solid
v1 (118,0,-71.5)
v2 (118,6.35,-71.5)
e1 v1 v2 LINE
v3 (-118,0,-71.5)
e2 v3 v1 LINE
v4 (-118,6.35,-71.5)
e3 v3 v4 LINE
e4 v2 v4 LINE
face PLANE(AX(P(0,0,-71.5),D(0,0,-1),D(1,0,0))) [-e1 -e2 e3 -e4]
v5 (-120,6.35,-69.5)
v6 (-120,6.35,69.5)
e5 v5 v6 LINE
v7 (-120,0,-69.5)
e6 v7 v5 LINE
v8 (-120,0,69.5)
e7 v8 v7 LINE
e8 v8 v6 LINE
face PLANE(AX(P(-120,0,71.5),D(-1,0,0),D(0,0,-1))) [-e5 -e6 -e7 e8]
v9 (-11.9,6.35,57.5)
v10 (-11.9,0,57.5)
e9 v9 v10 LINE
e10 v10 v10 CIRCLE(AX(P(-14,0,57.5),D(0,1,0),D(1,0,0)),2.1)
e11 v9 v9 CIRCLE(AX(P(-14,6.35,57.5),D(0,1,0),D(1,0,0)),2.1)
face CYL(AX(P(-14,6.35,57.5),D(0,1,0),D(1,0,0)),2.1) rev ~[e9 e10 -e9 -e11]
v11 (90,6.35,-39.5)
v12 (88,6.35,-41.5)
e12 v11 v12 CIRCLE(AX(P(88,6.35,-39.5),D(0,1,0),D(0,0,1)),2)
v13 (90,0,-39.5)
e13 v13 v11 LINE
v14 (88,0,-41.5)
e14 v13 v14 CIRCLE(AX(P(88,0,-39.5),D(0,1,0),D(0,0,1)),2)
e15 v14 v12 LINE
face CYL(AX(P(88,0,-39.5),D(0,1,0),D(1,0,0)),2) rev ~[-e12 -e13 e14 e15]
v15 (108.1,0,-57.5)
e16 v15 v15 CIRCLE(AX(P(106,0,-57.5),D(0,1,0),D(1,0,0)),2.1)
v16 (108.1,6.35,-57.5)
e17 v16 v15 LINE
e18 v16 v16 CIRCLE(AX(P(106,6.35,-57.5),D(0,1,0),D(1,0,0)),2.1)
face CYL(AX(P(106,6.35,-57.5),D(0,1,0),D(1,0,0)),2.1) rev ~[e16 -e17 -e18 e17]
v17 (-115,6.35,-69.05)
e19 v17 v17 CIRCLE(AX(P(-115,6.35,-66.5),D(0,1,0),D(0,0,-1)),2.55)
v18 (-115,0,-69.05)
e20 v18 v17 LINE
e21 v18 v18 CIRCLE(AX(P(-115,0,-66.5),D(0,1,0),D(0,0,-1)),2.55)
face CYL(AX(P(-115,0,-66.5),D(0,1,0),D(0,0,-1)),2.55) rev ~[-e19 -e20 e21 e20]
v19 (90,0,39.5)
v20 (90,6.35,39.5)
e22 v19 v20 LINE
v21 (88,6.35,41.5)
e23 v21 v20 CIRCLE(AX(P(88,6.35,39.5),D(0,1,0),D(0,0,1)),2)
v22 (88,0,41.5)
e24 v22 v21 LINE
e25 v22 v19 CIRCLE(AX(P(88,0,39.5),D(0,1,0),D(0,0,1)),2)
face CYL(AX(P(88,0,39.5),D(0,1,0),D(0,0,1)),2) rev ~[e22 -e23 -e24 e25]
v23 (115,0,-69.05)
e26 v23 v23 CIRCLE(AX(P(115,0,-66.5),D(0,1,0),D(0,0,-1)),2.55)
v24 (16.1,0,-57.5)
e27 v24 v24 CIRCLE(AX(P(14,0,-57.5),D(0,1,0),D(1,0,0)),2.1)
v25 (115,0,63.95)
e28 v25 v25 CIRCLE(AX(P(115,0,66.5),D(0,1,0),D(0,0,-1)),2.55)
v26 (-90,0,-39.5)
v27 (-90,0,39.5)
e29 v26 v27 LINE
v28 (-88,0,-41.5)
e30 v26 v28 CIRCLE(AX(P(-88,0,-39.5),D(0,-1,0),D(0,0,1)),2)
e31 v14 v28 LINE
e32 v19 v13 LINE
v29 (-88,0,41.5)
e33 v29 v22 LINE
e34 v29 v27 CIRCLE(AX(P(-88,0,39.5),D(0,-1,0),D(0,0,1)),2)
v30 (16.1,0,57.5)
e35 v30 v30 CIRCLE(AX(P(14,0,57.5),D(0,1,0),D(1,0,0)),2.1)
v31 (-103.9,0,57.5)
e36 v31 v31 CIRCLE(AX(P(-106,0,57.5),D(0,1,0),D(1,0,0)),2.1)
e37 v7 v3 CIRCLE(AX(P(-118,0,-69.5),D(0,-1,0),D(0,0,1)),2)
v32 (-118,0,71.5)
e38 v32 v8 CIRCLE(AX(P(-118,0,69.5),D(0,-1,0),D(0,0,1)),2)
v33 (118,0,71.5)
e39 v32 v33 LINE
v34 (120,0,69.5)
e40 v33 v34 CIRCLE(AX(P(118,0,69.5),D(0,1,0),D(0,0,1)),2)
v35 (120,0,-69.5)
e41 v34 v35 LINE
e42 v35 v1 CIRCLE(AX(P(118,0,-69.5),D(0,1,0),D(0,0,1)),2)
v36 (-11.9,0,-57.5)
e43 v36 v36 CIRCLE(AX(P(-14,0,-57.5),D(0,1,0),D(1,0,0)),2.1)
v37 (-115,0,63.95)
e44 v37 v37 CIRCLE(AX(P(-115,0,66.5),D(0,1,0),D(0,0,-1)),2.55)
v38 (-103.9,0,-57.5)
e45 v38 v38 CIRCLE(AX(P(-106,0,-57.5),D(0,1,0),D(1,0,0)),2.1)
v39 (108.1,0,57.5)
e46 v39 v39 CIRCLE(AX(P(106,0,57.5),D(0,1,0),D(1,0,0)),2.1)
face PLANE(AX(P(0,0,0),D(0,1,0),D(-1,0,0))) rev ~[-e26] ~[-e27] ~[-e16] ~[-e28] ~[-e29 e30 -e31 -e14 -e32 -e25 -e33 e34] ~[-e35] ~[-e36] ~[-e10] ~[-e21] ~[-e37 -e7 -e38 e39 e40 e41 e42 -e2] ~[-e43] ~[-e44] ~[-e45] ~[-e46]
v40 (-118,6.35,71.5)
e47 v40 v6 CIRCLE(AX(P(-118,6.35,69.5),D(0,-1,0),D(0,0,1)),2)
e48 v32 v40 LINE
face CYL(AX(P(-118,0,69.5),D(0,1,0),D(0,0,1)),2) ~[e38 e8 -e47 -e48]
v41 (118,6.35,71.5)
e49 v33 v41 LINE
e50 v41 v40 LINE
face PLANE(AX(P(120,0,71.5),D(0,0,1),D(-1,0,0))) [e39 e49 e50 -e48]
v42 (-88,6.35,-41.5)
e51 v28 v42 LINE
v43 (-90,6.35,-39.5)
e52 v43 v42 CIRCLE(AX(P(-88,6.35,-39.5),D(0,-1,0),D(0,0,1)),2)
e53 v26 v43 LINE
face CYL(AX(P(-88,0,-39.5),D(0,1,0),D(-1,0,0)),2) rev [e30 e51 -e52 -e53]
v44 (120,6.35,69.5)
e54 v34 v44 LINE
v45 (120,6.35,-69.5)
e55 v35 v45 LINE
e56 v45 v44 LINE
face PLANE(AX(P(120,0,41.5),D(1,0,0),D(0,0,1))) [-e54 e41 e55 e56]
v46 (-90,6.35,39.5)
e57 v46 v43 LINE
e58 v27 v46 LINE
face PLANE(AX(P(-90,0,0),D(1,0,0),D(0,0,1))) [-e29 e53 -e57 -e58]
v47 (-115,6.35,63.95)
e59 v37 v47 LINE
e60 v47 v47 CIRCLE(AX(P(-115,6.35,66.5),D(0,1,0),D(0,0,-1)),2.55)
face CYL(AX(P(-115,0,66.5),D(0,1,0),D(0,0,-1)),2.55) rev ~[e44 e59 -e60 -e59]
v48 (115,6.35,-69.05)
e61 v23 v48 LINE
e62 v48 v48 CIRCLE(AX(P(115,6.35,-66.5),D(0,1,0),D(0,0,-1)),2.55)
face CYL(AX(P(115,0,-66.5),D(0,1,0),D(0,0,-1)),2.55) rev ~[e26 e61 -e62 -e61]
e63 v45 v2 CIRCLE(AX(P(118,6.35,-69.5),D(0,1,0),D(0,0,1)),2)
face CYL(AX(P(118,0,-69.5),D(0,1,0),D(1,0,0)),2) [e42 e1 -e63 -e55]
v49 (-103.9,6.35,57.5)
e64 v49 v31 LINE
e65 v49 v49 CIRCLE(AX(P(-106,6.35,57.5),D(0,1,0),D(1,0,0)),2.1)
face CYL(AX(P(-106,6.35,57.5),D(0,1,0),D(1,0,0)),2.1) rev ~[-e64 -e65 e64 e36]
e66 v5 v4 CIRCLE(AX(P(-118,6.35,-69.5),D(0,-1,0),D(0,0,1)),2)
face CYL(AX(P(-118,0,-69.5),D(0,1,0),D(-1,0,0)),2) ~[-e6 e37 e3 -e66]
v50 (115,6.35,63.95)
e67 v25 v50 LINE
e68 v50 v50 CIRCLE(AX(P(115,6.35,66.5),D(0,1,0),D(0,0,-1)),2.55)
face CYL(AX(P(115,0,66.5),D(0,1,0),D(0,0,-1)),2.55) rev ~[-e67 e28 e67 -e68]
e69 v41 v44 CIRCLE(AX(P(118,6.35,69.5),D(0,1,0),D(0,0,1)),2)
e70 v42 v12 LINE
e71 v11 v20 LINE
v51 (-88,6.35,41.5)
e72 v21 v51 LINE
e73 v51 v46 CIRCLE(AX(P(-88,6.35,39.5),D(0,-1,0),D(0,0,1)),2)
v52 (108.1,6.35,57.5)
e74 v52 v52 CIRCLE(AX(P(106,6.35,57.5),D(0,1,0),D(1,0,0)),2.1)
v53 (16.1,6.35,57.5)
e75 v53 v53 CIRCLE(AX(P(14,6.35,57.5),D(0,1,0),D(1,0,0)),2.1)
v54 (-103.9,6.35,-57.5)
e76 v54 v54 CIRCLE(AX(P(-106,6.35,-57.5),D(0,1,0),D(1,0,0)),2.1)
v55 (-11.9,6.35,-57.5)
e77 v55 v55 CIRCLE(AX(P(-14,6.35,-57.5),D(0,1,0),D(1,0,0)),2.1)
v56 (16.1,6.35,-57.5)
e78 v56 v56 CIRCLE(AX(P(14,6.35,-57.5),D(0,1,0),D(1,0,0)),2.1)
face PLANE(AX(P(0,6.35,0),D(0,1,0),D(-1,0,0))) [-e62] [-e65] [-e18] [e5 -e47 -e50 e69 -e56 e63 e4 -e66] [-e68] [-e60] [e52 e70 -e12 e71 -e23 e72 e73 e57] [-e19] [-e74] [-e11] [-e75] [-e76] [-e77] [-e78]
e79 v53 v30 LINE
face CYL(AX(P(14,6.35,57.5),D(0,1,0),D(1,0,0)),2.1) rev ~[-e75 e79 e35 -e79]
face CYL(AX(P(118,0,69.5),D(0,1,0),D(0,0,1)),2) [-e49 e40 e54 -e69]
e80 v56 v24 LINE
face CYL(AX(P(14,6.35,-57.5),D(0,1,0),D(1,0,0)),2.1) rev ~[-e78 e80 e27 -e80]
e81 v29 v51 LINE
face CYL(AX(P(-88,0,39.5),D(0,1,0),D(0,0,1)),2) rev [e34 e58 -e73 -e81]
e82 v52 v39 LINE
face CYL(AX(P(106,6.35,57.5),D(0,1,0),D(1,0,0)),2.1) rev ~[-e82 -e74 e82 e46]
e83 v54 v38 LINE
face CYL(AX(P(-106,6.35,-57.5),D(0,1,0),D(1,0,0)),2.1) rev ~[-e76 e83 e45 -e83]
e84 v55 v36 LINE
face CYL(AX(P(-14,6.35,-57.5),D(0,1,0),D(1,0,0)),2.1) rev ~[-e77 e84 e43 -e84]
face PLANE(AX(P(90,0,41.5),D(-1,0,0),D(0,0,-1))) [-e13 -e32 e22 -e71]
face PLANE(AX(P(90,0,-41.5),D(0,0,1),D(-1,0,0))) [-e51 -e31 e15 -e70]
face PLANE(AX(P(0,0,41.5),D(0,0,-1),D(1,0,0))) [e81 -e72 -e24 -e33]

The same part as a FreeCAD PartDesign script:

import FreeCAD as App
import Part
import Sketcher
Q = App.Units.Quantity


def edges_at(feature, points):
    """Names of the edges that pass closest to the given points."""
    edges = feature.Shape.Edges
    near = lambda p: min(range(len(edges)), key=lambda i: edges[i].distToShape(Part.Vertex(*p))[0])
    return sorted({f"Edge{near(p) + 1}" for p in points})

doc = App.newDocument("Part")
body = doc.addObject("PartDesign::Body", "Body")

# Sketch on XZ plane
sketch1 = body.newObject("Sketcher::SketchObject", "Sketch")
sketch1.AttachmentSupport = (doc.getObject("XZ_Plane"), [""])
sketch1.MapMode = "FlatFace"
sketch1.addGeometry([
    Part.LineSegment(App.Vector(120, 72, 0), App.Vector(120, -72, 0)),  # 0
    Part.LineSegment(App.Vector(120, -72, 0), App.Vector(-120, -72, 0)),  # 1
    Part.LineSegment(App.Vector(-120, -72, 0), App.Vector(-120, 72, 0)),  # 2
    Part.LineSegment(App.Vector(-120, 72, 0), App.Vector(120, 72, 0)),  # 3
    Part.LineSegment(App.Vector(90, 42, 0), App.Vector(-90, 42, 0)),  # 4
    Part.LineSegment(App.Vector(-90, 42, 0), App.Vector(-90, -42, 0)),  # 5
    Part.LineSegment(App.Vector(-90, -42, 0), App.Vector(90, -42, 0)),  # 6
    Part.LineSegment(App.Vector(90, -42, 0), App.Vector(90, 42, 0)),  # 7
], False)
sketch1.addConstraint([
    Sketcher.Constraint("Coincident", 0, 2, 1, 1),
    Sketcher.Constraint("Coincident", 1, 2, 2, 1),
    Sketcher.Constraint("Coincident", 2, 2, 3, 1),
    Sketcher.Constraint("Coincident", 3, 2, 0, 1),
    Sketcher.Constraint("Coincident", 4, 2, 5, 1),
    Sketcher.Constraint("Coincident", 5, 2, 6, 1),
    Sketcher.Constraint("Coincident", 6, 2, 7, 1),
    Sketcher.Constraint("Coincident", 7, 2, 4, 1),
    Sketcher.Constraint("Vertical", 0),
    Sketcher.Constraint("Horizontal", 1),
    Sketcher.Constraint("Vertical", 2),
    Sketcher.Constraint("Horizontal", 3),
    Sketcher.Constraint("Horizontal", 4),
    Sketcher.Constraint("Vertical", 5),
    Sketcher.Constraint("Horizontal", 6),
    Sketcher.Constraint("Vertical", 7),
    Sketcher.Constraint("Symmetric", 0, 2, 2, 2, -1, 1),
    Sketcher.Constraint("Symmetric", 4, 2, 6, 2, -1, 1),
    Sketcher.Constraint("DistanceX", 1, 2, 1, 1, Q("240 mm")),
    Sketcher.Constraint("DistanceY", 0, 2, 0, 1, Q("143 mm")),
    Sketcher.Constraint("DistanceX", 2, 2, 4, 2, Q("30 mm")),
    Sketcher.Constraint("DistanceY", 4, 2, 2, 2, Q("30 mm")),
])
pad1 = body.newObject("PartDesign::Pad", "Pad")
pad1.Profile = sketch1
pad1.Length = 6.35
pad1.Reversed = True

# Sketch on XZ plane
sketch2 = body.newObject("Sketcher::SketchObject", "Sketch001")
sketch2.AttachmentSupport = (doc.getObject("XZ_Plane"), [""])
sketch2.MapMode = "FlatFace"
sketch2.AttachmentOffset = App.Placement(App.Vector(0, 0, -6.35), App.Rotation())
sketch2.addGeometry([
    Part.Circle(App.Vector(-106, 57.5, 0), App.Vector(0, 0, 1), 2.1),  # 0
    Part.Circle(App.Vector(-106, -57.5, 0), App.Vector(0, 0, 1), 2.1),  # 1
    Part.Circle(App.Vector(-14, 57.5, 0), App.Vector(0, 0, 1), 2.1),  # 2
    Part.Circle(App.Vector(-14, -57.5, 0), App.Vector(0, 0, 1), 2.1),  # 3
    Part.Circle(App.Vector(14, 57.5, 0), App.Vector(0, 0, 1), 2.1),  # 4
    Part.Circle(App.Vector(14, -57.5, 0), App.Vector(0, 0, 1), 2.1),  # 5
    Part.Circle(App.Vector(106, 57.5, 0), App.Vector(0, 0, 1), 2.1),  # 6
    Part.Circle(App.Vector(106, -57.5, 0), App.Vector(0, 0, 1), 2.1),  # 7
], False)
sketch2.addConstraint([
    Sketcher.Constraint("Equal", 0, 1),
    Sketcher.Constraint("Equal", 1, 2),
    Sketcher.Constraint("Equal", 2, 3),
    Sketcher.Constraint("Equal", 3, 4),
    Sketcher.Constraint("Equal", 4, 5),
    Sketcher.Constraint("Equal", 5, 6),
    Sketcher.Constraint("Equal", 6, 7),
    Sketcher.Constraint("Symmetric", 3, 3, 4, 3, -1, 1),
    Sketcher.Constraint("Symmetric", 2, 3, 5, 3, -1, 1),
    Sketcher.Constraint("Symmetric", 1, 3, 6, 3, -1, 1),
    Sketcher.Constraint("Symmetric", 0, 3, 7, 3, -1, 1),
    Sketcher.Constraint("Symmetric", 2, 3, 4, 3, -2),
    Sketcher.Constraint("Symmetric", 0, 3, 6, 3, -2),
    Sketcher.Constraint("Horizontal", 0, 3, 2, 3),
    Sketcher.Constraint("Diameter", 0, Q("4.2 mm")),
    Sketcher.Constraint("DistanceX", 0, 3, -1, 1, Q("106 mm")),
    Sketcher.Constraint("DistanceX", 2, 3, -1, 1, Q("14 mm")),
    Sketcher.Constraint("DistanceY", 1, 3, 0, 3, Q("115 mm")),
])
pocket1 = body.newObject("PartDesign::Pocket", "Pocket")
pocket1.Profile = sketch2
pocket1.Type = "ThroughAll"
pocket1.Reversed = True

# Sketch on XZ plane
sketch3 = body.newObject("Sketcher::SketchObject", "Sketch002")
sketch3.AttachmentSupport = (doc.getObject("XZ_Plane"), [""])
sketch3.MapMode = "FlatFace"
sketch3.addGeometry([
    Part.Circle(App.Vector(115, 66.5, 0), App.Vector(0, 0, 1), 2.5),
    Part.Circle(App.Vector(115, -66.5, 0), App.Vector(0, 0, 1), 2.5),
    Part.Circle(App.Vector(-115, -66.5, 0), App.Vector(0, 0, 1), 2.5),
    Part.Circle(App.Vector(-115, 66.5, 0), App.Vector(0, 0, 1), 2.5),
], False)
sketch3.addConstraint([
    Sketcher.Constraint("Equal", 0, 1),
    Sketcher.Constraint("Equal", 1, 2),
    Sketcher.Constraint("Equal", 2, 3),
    Sketcher.Constraint("Symmetric", 0, 3, 2, 3, -1, 1),
    Sketcher.Constraint("Symmetric", 1, 3, 3, 3, -1, 1),
    Sketcher.Constraint("Symmetric", 1, 3, 2, 3, -2),
    Sketcher.Constraint("Diameter", 0, Q("5.1 mm")),
    Sketcher.Constraint("DistanceX", -1, 1, 0, 3, Q("115 mm")),
    Sketcher.Constraint("DistanceY", 1, 3, 0, 3, Q("133 mm")),
])
doc.recompute()
hole = body.newObject("PartDesign::Hole", "Hole")
hole.Profile = sketch3
hole.ThreadType = "None"
hole.Diameter = 5.1
hole.DepthType = "ThroughAll"
doc.recompute()

fillet = body.newObject("PartDesign::Fillet", "Fillet")
fillet.Base = (hole, edges_at(hole, [
    (90, 3.175, 41.5),
    (90, 3.175, -41.5),
    (-90, 3.175, 41.5),
    (-90, 3.175, -41.5),
    (-120, 3.175, 71.5),
    (-120, 3.175, -71.5),
    (120, 3.175, -71.5),
    (120, 3.175, 71.5),
]))
fillet.Radius = 2

doc.recompute()
